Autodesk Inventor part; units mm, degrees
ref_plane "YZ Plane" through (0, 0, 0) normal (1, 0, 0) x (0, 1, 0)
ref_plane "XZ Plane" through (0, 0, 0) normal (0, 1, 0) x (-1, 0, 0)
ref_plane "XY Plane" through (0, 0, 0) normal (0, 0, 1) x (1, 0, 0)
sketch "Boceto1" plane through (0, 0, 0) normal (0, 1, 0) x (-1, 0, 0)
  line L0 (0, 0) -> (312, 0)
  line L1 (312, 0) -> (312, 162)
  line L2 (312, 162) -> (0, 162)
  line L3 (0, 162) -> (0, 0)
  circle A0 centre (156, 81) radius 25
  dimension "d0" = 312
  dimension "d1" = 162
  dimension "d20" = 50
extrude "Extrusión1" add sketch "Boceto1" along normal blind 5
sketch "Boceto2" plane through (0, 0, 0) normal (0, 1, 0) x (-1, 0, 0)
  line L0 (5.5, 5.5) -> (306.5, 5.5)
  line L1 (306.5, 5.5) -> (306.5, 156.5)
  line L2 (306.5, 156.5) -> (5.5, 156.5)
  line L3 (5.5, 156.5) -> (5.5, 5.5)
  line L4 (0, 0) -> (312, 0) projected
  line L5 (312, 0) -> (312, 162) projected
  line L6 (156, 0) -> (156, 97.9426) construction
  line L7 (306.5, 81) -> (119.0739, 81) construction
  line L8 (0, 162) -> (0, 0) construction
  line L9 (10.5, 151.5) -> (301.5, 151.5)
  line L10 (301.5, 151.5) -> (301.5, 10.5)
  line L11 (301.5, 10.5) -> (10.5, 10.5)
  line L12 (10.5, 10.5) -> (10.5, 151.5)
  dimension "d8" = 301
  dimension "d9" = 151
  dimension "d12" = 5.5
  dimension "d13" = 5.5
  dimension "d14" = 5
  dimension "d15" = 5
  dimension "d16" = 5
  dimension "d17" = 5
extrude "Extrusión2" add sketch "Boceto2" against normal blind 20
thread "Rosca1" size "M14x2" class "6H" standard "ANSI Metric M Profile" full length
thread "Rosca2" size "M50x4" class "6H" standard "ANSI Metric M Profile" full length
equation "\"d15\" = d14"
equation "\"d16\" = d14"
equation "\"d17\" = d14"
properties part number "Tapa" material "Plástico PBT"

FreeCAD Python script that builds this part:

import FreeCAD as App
import Part
import Sketcher
from FreeCAD import Vector


def add_polygon(sketch, points):
    """Adds a closed chain of lines whose ends are joined by coincident constraints."""
    first, n = sketch.GeometryCount, len(points)
    for a, b in zip(points, points[1:] + points[:1]):
        sketch.addGeometry(Part.LineSegment(App.Vector(*a, 0), App.Vector(*b, 0)), False)
    for i in range(n):
        sketch.addConstraint(Sketcher.Constraint("Coincident", first + i, 2, first + (i + 1) % n, 1))

doc = App.newDocument("Part")
params = doc.addObject("Spreadsheet::Sheet", "Params")
for row, (alias, value) in enumerate([
    ("sketch1_diameter", "50 mm"),
    ("sketch1_width", "312 mm"),
    ("sketch1_height", "162 mm"),
    ("pad1_length", "5 mm"),
    ("sketch2_width", "301 mm"),
    ("sketch2_height", "151 mm"),
    ("pad2_length", "20 mm"),
], start=1):
    params.set(f"A{row}", alias)
    params.set(f"B{row}", "=" + value)
    params.setAlias(f"B{row}", alias)

body = doc.addObject("PartDesign::Body", "Body")

# Sketch on XZ plane
sketch1 = body.newObject("Sketcher::SketchObject", "Sketch")
sketch1.AttachmentSupport = (doc.getObject("XZ_Plane"), [""])
sketch1.MapMode = "FlatFace"
add_polygon(sketch1, [(0, 162), (0, 0), (-312, 0), (-312, 162)])  # lines 0-3
sketch1.addGeometry(Part.Circle(Vector(-156, 81, 0), Vector(0, 0, 1), 25), False)  # 4
sketch1.addConstraint([
    Sketcher.Constraint("Vertical", 0),
    Sketcher.Constraint("Horizontal", 1),
    Sketcher.Constraint("Vertical", 2),
    Sketcher.Constraint("Horizontal", 3),
    Sketcher.Constraint("Coincident", 0, 2, -1, 1),
    Sketcher.Constraint("Diameter", 4, 50.0),
    Sketcher.Constraint("DistanceX", 1, 2, 1, 1, 312.0),
    Sketcher.Constraint("DistanceY", 0, 2, 0, 1, 162.0),
    Sketcher.Constraint("DistanceX", 4, 3, -1, 1, 156.0),
    Sketcher.Constraint("DistanceY", -1, 1, 4, 3, 81.0),
])
sketch1.setExpression("Constraints[9]", "Params.sketch1_diameter")
sketch1.setExpression("Constraints[10]", "Params.sketch1_width")
sketch1.setExpression("Constraints[11]", "Params.sketch1_height")
pad1 = body.newObject("PartDesign::Pad", "Pad")
pad1.Profile = sketch1
pad1.setExpression("Length", "Params.pad1_length")
pad1.Reversed = True

# Sketch on XZ plane
sketch2 = body.newObject("Sketcher::SketchObject", "Sketch001")
sketch2.AttachmentSupport = (doc.getObject("XZ_Plane"), [""])
sketch2.MapMode = "FlatFace"
add_polygon(sketch2, [(-6, 156), (-6, 6), (-306, 6), (-306, 156)])  # lines 0-3
add_polygon(sketch2, [(-10, 10), (-10, 152), (-302, 152), (-302, 10)])  # lines 4-7
sketch2.addConstraint([
    Sketcher.Constraint("Vertical", 0),
    Sketcher.Constraint("Horizontal", 1),
    Sketcher.Constraint("Vertical", 2),
    Sketcher.Constraint("Horizontal", 3),
    Sketcher.Constraint("Vertical", 4),
    Sketcher.Constraint("Horizontal", 5),
    Sketcher.Constraint("Vertical", 6),
    Sketcher.Constraint("Horizontal", 7),
    Sketcher.Constraint("DistanceX", 1, 2, 1, 1, 301.0),
    Sketcher.Constraint("DistanceY", 0, 2, 0, 1, 151.0),
    Sketcher.Constraint("DistanceX", 4, 2, 3, 2, 5.0),
    Sketcher.Constraint("DistanceY", 4, 2, 3, 2, 5.0),
    Sketcher.Constraint("DistanceX", 2, 2, 5, 2, 5.0),
    Sketcher.Constraint("DistanceY", 1, 2, 6, 2, 5.0),
    Sketcher.Constraint("DistanceX", 0, 2, -1, 1, 5.5),
    Sketcher.Constraint("DistanceY", -1, 1, 0, 2, 5.5),
])
sketch2.setExpression("Constraints[16]", "Params.sketch2_width")
sketch2.setExpression("Constraints[17]", "Params.sketch2_height")
pad2 = body.newObject("PartDesign::Pad", "Pad001")
pad2.Profile = sketch2
pad2.setExpression("Length", "Params.pad2_length")

doc.recompute()
